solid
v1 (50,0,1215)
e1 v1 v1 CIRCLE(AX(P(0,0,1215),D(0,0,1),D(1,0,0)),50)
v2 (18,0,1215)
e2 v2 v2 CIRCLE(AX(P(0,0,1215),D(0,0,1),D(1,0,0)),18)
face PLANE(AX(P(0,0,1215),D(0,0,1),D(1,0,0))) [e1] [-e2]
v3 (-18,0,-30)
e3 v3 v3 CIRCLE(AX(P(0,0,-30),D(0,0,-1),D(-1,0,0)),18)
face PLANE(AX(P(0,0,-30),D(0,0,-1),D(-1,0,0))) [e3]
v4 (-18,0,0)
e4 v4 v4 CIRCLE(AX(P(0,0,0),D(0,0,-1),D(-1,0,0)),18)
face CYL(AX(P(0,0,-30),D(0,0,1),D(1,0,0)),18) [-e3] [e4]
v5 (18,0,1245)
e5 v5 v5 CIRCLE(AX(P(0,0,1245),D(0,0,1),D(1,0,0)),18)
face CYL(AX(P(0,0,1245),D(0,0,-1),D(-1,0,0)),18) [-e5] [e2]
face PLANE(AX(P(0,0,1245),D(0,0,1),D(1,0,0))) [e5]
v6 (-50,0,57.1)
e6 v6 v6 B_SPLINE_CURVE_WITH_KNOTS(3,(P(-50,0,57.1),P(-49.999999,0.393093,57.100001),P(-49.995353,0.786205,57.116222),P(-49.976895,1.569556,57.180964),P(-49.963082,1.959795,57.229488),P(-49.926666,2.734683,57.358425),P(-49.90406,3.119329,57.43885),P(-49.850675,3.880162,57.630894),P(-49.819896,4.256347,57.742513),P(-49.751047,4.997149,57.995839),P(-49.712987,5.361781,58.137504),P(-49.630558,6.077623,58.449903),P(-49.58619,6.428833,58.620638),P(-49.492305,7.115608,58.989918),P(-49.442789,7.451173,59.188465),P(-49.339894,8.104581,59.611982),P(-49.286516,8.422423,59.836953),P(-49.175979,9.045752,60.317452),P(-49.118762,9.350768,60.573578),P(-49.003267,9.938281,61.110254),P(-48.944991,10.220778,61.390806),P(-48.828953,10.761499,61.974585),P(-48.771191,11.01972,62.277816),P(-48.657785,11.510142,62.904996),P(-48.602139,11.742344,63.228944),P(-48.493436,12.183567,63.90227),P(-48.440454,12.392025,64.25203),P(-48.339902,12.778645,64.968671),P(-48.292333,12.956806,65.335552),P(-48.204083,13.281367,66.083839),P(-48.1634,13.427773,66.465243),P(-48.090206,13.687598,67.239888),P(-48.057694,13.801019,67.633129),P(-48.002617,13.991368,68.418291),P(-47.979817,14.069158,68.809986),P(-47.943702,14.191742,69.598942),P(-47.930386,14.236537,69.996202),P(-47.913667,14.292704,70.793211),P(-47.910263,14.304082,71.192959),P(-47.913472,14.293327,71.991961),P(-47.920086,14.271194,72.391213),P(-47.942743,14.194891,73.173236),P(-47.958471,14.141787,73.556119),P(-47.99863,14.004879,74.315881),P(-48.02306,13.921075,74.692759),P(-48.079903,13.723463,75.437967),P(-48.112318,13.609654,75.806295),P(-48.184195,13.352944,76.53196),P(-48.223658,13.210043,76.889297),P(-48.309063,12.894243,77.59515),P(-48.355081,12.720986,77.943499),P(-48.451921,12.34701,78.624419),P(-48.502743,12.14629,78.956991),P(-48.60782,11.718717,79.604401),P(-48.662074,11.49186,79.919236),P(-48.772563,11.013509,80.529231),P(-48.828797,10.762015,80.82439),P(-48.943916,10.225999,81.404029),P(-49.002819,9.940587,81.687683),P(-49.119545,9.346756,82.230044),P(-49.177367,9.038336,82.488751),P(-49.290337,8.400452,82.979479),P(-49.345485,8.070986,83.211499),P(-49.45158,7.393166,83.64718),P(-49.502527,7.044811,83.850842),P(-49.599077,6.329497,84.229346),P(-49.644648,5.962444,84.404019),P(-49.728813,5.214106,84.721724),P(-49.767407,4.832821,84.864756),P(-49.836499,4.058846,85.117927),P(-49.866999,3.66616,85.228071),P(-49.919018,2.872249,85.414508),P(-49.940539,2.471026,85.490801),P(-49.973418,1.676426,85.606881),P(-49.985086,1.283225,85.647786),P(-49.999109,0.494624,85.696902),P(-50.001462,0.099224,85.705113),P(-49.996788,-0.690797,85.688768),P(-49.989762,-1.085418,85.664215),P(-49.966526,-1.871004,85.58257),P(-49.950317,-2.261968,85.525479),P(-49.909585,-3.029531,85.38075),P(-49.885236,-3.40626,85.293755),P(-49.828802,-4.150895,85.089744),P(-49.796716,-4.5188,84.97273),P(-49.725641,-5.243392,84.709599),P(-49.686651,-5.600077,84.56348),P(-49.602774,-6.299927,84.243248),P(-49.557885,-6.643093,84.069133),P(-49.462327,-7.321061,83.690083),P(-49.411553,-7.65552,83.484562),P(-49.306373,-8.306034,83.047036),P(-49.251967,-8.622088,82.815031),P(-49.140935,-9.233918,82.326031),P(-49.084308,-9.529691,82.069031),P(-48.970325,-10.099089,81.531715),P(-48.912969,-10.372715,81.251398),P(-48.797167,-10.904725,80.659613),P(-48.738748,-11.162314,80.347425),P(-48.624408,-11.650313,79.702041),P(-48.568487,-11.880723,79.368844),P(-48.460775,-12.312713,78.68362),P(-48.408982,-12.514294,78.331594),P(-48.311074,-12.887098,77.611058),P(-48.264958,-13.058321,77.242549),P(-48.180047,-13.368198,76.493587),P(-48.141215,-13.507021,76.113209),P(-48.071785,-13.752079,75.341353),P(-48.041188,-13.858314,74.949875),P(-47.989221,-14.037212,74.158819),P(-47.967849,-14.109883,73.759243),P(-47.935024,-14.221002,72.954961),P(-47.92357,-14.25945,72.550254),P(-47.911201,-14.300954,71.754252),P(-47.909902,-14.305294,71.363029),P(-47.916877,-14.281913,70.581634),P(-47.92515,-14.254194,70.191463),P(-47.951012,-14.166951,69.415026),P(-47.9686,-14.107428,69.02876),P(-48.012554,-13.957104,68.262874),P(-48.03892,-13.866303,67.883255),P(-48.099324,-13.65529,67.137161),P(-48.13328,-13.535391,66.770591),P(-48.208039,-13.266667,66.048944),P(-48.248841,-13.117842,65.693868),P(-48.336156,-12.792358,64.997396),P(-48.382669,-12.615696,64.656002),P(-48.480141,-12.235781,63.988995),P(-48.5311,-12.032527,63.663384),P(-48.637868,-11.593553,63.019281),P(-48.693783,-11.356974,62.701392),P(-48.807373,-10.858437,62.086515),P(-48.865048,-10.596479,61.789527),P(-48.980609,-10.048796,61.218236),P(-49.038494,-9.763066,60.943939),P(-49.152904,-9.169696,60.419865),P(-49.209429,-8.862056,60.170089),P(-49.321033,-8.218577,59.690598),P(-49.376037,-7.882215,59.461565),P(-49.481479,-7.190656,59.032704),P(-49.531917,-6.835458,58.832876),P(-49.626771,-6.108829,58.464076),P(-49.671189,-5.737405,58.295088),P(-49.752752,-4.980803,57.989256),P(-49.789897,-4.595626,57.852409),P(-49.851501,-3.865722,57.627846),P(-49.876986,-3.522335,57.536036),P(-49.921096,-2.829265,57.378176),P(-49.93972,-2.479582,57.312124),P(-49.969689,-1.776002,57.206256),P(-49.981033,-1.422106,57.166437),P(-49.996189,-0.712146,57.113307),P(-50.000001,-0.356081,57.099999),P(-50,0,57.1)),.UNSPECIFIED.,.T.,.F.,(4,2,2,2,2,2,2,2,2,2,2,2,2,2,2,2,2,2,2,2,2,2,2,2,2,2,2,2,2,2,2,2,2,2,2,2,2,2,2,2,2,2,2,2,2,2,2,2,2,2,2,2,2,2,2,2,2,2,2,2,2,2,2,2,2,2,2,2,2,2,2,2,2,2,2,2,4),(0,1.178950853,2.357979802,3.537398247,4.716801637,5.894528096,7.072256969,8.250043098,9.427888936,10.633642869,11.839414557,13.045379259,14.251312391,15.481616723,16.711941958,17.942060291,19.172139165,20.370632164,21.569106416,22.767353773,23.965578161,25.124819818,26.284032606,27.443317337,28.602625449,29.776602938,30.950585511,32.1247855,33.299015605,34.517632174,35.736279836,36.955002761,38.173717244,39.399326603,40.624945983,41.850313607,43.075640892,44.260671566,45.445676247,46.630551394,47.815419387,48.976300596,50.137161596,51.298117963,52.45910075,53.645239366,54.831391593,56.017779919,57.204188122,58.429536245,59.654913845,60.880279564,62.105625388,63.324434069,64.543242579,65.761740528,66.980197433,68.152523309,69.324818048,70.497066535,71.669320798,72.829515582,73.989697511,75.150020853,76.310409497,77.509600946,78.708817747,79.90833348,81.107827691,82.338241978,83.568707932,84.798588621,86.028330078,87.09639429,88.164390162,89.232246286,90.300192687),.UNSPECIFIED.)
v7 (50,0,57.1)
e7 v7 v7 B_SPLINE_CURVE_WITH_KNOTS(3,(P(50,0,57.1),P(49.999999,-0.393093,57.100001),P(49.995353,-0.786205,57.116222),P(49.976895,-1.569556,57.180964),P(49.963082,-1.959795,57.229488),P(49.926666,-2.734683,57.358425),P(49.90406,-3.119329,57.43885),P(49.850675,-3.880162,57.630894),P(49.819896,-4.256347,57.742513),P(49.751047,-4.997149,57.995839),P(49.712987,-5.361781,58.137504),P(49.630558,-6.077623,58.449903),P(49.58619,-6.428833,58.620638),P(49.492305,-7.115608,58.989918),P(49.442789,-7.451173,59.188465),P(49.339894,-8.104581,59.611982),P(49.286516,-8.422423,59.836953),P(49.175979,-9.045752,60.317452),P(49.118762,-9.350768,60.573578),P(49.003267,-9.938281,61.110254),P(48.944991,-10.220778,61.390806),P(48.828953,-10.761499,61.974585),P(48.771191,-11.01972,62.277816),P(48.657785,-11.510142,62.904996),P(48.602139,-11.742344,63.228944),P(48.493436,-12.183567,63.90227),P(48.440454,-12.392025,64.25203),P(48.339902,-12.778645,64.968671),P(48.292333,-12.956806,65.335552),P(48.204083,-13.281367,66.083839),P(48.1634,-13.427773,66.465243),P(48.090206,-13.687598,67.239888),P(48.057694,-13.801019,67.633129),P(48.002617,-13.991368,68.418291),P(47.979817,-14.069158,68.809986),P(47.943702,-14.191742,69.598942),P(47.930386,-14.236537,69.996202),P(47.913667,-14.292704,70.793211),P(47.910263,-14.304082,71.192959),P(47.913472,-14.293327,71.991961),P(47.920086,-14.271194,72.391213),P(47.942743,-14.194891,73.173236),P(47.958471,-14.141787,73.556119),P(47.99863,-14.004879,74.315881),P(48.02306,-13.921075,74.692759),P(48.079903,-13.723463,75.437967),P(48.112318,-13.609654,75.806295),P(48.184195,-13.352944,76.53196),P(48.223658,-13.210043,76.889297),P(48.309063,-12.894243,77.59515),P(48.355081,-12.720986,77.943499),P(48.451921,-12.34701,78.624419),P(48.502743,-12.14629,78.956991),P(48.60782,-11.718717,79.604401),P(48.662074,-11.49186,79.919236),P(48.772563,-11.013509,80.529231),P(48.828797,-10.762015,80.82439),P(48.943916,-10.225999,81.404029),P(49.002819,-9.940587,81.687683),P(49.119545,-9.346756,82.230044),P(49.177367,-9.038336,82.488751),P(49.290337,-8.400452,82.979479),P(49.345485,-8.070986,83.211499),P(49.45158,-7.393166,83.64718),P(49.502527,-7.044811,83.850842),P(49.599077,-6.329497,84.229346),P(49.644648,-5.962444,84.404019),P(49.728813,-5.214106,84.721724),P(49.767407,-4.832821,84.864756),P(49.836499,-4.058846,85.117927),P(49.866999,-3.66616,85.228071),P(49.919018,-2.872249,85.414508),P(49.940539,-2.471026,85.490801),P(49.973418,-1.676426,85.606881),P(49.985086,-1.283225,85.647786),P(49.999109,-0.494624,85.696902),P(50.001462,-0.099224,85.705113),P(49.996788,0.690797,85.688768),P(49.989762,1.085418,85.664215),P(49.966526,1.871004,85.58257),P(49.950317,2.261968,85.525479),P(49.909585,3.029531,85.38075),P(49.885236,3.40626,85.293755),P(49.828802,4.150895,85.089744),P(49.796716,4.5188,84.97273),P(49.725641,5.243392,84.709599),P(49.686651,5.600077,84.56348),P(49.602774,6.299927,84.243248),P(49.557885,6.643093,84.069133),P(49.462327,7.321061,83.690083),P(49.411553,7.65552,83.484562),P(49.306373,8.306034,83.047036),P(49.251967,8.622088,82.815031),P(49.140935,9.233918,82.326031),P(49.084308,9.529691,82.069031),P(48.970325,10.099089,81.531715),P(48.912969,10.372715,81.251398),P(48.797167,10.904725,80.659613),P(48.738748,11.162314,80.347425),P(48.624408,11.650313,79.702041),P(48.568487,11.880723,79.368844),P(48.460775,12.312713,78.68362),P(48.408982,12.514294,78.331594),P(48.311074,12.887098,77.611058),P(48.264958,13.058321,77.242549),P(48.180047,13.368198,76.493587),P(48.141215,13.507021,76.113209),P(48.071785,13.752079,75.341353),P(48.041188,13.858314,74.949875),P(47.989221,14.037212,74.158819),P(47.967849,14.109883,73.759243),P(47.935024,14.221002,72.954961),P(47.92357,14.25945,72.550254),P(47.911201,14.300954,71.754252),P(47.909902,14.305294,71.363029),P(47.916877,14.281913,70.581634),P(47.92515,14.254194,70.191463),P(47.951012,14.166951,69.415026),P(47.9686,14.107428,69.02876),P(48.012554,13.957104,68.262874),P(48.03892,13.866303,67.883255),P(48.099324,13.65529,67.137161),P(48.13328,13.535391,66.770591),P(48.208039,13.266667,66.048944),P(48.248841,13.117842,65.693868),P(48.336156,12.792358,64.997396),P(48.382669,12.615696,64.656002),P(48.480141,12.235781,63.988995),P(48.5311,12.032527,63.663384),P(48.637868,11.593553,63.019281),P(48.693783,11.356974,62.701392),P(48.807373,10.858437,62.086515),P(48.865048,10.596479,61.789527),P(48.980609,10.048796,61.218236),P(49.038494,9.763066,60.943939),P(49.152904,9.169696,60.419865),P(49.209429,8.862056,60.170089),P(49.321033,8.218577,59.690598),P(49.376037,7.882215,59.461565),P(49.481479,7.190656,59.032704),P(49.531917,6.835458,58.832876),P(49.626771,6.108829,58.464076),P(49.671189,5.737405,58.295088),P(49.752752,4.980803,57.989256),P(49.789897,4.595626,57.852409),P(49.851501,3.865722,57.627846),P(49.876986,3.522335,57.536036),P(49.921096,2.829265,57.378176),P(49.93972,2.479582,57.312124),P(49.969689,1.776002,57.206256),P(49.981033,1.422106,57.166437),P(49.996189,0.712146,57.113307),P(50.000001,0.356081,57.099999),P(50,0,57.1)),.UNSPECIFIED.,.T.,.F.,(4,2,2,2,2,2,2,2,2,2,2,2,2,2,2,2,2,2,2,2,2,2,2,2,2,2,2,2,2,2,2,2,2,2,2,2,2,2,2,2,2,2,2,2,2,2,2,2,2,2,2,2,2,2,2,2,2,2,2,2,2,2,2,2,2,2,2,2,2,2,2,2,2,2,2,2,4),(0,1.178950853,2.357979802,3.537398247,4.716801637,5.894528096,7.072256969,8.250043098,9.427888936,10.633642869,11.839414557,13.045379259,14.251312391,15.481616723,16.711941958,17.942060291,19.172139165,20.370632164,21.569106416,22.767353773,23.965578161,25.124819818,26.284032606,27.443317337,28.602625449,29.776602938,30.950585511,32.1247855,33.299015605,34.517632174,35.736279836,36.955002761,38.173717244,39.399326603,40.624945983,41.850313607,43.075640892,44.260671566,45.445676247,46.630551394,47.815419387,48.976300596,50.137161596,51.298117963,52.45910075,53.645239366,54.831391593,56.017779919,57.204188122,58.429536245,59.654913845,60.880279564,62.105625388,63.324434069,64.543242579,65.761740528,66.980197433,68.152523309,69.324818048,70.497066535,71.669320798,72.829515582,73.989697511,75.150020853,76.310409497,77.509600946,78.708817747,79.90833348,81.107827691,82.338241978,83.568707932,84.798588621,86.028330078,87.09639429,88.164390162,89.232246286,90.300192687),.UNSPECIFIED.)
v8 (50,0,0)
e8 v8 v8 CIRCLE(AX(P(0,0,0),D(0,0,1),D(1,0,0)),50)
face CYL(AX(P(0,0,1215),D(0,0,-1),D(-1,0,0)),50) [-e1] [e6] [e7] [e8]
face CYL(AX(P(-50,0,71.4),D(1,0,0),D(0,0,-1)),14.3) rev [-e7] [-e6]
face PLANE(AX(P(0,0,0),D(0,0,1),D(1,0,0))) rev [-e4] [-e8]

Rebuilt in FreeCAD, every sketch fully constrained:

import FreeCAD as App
import Part
import Sketcher

V = App.Vector

doc = App.newDocument("Part")
params = doc.addObject("Spreadsheet::Sheet", "Params")
for row, (alias, value) in enumerate([
    ("sketch1_diameter", "100 mm"),
    ("pad1_length", "1215 mm"),
    ("sketch2_diameter", "36 mm"),
    ("pad2_length", "30 mm"),
    ("sketch3_diameter", "36 mm"),
    ("pad3_length", "30 mm"),
    ("sketch4_diameter", "28.6 mm"),
], start=1):
    params.set(f"A{row}", alias)
    params.set(f"B{row}", "=" + value)
    params.setAlias(f"B{row}", alias)

body = doc.addObject("PartDesign::Body", "Body")

sketch1 = doc.addObject("Sketcher::SketchObject", "Sketch")
body.addObject(sketch1)
sketch1.AttachmentSupport = (doc.XY_Plane, [""])
sketch1.MapMode = "FlatFace"
sketch1.addGeometry(Part.Circle(V(0, 0, 0), V(0, 0, 1), 50), False)
sketch1.addConstraint([
    Sketcher.Constraint("Coincident", 0, 3, -1, 1),
    Sketcher.Constraint("Diameter", 0, 100.0),
])
sketch1.setExpression("Constraints[1]", "Params.sketch1_diameter")
pad1 = doc.addObject("PartDesign::Pad", "Pad")
body.addObject(pad1)
pad1.Profile = sketch1
pad1.setExpression("Length", "Params.pad1_length")

sketch2 = doc.addObject("Sketcher::SketchObject", "Sketch001")
body.addObject(sketch2)
sketch2.AttachmentSupport = (doc.XY_Plane, [""])
sketch2.MapMode = "FlatFace"
sketch2.addGeometry(Part.Circle(V(0, 0, 0), V(0, 0, 1), 18), False)
sketch2.addConstraint([
    Sketcher.Constraint("Coincident", 0, 3, -1, 1),
    Sketcher.Constraint("Diameter", 0, 36.0),
])
sketch2.setExpression("Constraints[1]", "Params.sketch2_diameter")
pad2 = doc.addObject("PartDesign::Pad", "Pad001")
body.addObject(pad2)
pad2.Profile = sketch2
pad2.setExpression("Length", "Params.pad2_length")
pad2.Reversed = True

sketch3 = doc.addObject("Sketcher::SketchObject", "Sketch002")
body.addObject(sketch3)
sketch3.AttachmentSupport = (doc.XY_Plane, [""])
sketch3.MapMode = "FlatFace"
sketch3.AttachmentOffset = App.Placement(V(0, 0, 1245), App.Rotation())
sketch3.addGeometry(Part.Circle(V(0, 0, 0), V(0, 0, 1), 18), False)
sketch3.addConstraint([
    Sketcher.Constraint("Coincident", 0, 3, -1, 1),
    Sketcher.Constraint("Diameter", 0, 36.0),
])
sketch3.setExpression("Constraints[1]", "Params.sketch3_diameter")
pad3 = doc.addObject("PartDesign::Pad", "Pad002")
body.addObject(pad3)
pad3.Profile = sketch3
pad3.setExpression("Length", "Params.pad3_length")
pad3.Reversed = True

sketch4 = doc.addObject("Sketcher::SketchObject", "Sketch003")
body.addObject(sketch4)
sketch4.AttachmentSupport = (doc.YZ_Plane, [""])
sketch4.MapMode = "FlatFace"
sketch4.addGeometry(Part.Circle(V(0, 71, 0), V(0, 0, 1), 14), False)
sketch4.addConstraint([
    Sketcher.Constraint("PointOnObject", 0, 3, -2),
    Sketcher.Constraint("Diameter", 0, 28.6),
    Sketcher.Constraint("DistanceY", -1, 1, 0, 3, 71.4),
])
sketch4.setExpression("Constraints[1]", "Params.sketch4_diameter")
pocket1 = doc.addObject("PartDesign::Pocket", "Pocket")
body.addObject(pocket1)
pocket1.Profile = sketch4
pocket1.Type = "ThroughAll"
pocket1.Midplane = True

doc.recompute()
